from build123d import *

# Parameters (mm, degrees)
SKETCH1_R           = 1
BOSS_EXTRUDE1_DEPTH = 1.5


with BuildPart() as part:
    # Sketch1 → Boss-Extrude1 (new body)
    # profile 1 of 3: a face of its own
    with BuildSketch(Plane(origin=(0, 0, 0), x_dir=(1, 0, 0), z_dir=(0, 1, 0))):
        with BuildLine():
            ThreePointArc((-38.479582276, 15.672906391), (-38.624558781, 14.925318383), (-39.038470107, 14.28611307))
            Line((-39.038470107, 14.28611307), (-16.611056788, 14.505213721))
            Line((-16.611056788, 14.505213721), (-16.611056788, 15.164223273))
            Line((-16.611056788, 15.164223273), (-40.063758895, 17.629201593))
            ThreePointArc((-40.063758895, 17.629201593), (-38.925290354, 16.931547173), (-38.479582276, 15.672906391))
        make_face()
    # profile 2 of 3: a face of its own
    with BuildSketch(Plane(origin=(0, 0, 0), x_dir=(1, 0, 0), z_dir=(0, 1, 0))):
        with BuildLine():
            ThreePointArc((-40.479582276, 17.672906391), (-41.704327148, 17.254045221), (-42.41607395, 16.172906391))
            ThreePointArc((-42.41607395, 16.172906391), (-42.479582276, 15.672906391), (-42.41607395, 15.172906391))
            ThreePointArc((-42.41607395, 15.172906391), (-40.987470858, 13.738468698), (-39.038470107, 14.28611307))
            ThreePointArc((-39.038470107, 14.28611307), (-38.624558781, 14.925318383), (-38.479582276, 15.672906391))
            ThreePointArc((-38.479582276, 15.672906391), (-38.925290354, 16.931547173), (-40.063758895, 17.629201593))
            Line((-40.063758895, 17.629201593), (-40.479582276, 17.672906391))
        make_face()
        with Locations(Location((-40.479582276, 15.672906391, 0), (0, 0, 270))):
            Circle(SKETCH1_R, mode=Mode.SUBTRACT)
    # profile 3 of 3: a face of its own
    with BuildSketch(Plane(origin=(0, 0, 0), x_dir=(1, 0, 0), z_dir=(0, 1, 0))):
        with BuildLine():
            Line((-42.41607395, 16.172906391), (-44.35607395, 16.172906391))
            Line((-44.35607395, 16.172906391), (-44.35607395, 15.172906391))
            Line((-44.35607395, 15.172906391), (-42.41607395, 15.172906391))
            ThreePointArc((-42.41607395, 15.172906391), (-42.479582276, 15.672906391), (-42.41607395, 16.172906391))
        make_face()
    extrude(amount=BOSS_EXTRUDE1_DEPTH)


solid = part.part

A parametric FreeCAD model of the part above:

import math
import FreeCAD as App
import Part
import Sketcher

V = App.Vector
Q = App.Units.Quantity

doc = App.newDocument("Part")
body = doc.addObject("PartDesign::Body", "Body")

# Sketch on XZ plane
sketch1 = doc.addObject("Sketcher::SketchObject", "Sketch")
body.addObject(sketch1)
sketch1.AttachmentSupport = (doc.XZ_Plane, [""])
sketch1.MapMode = "FlatFace"
sketch1.addGeometry(Part.LineSegment(V(-39.04, -14.29, 0), V(-16.61, -14.51, 0)), False)
sketch1.addGeometry(Part.LineSegment(V(-16.61, -14.51, 0), V(-16.61, -15.16, 0)), False)
sketch1.addGeometry(Part.LineSegment(V(-16.61, -15.16, 0), V(-40.06, -17.63, 0)), False)
sketch1.addGeometry(Part.LineSegment(V(-40.06, -17.63, 0), V(-40.48, -17.67, 0)), False)
sketch1.addGeometry(Part.ArcOfCircle(Part.Circle(V(-40.48, -15.67, 0), V(0, 0, 1), 2), math.radians(-166), math.radians(-90)), False)
sketch1.addGeometry(Part.LineSegment(V(-42.42, -16.17, 0), V(-44.36, -16.17, 0)), False)
sketch1.addGeometry(Part.LineSegment(V(-44.36, -16.17, 0), V(-44.36, -15.17, 0)), False)
sketch1.addGeometry(Part.LineSegment(V(-44.36, -15.17, 0), V(-42.42, -15.17, 0)), False)
sketch1.addGeometry(Part.ArcOfCircle(Part.Circle(V(-40.48, -15.67, 0), V(0, 0, 1), 2), math.radians(44), math.radians(166)), False)
sketch1.addGeometry(Part.Circle(V(-40.48, -15.67, 0), V(0, 0, 1), 1), False)
sketch1.addConstraint(Sketcher.Constraint("Coincident", 0, 2, 1, 1))
sketch1.addConstraint(Sketcher.Constraint("Coincident", 1, 2, 2, 1))
sketch1.addConstraint(Sketcher.Constraint("Coincident", 2, 2, 3, 1))
sketch1.addConstraint(Sketcher.Constraint("Coincident", 3, 2, 4, 2))
sketch1.addConstraint(Sketcher.Constraint("Coincident", 4, 1, 5, 1))
sketch1.addConstraint(Sketcher.Constraint("Coincident", 5, 2, 6, 1))
sketch1.addConstraint(Sketcher.Constraint("Coincident", 6, 2, 7, 1))
sketch1.addConstraint(Sketcher.Constraint("Coincident", 7, 2, 8, 2))
sketch1.addConstraint(Sketcher.Constraint("Coincident", 8, 1, 0, 1))
sketch1.addConstraint(Sketcher.Constraint("Vertical", 1))
sketch1.addConstraint(Sketcher.Constraint("Horizontal", 5))
sketch1.addConstraint(Sketcher.Constraint("Vertical", 6))
sketch1.addConstraint(Sketcher.Constraint("Horizontal", 7))
sketch1.addConstraint(Sketcher.Constraint("Coincident", 8, 3, 4, 3))
sketch1.addConstraint(Sketcher.Constraint("Coincident", 9, 3, 4, 3))
sketch1.addConstraint(Sketcher.Constraint("Equal", 4, 8))
sketch1.addConstraint(Sketcher.Constraint("Parallel", 2, 3))
sketch1.addConstraint(Sketcher.Constraint("Vertical", 9, 3, 3, 2))
sketch1.addConstraint(Sketcher.Constraint("Vertical", 4, 1, 7, 2))
sketch1.addConstraint(Sketcher.Constraint("Diameter", 9, 2.0))
sketch1.addConstraint(Sketcher.Constraint("Radius", 4, 2.0))
sketch1.addConstraint(Sketcher.Constraint("DistanceY", 6, 1, 6, 2, 1.0))
sketch1.addConstraint(Sketcher.Constraint("Angle", 2, Q("-174 deg")))
sketch1.addConstraint(Sketcher.Constraint("DistanceX", 5, 2, 5, 1, 1.94))
sketch1.addConstraint(Sketcher.Constraint("DistanceY", 1, 2, 1, 1, 0.65901))
sketch1.addConstraint(Sketcher.Constraint("DistanceY", 2, 2, -1, 1, 17.629202))
sketch1.addConstraint(Sketcher.Constraint("DistanceX", 2, 2, -1, 1, 40.063759))
sketch1.addConstraint(Sketcher.Constraint("DistanceX", 8, 1, -1, 1, 39.03847))
sketch1.addConstraint(Sketcher.Constraint("DistanceY", 2, 2, 1, 2, 2.464978))
sketch1.addConstraint(Sketcher.Constraint("DistanceY", 2, 2, 8, 1, 3.343089))
pad1 = doc.addObject("PartDesign::Pad", "Pad")
body.addObject(pad1)
pad1.Profile = sketch1
pad1.Length = 1.5
pad1.Reversed = True

doc.recompute()
